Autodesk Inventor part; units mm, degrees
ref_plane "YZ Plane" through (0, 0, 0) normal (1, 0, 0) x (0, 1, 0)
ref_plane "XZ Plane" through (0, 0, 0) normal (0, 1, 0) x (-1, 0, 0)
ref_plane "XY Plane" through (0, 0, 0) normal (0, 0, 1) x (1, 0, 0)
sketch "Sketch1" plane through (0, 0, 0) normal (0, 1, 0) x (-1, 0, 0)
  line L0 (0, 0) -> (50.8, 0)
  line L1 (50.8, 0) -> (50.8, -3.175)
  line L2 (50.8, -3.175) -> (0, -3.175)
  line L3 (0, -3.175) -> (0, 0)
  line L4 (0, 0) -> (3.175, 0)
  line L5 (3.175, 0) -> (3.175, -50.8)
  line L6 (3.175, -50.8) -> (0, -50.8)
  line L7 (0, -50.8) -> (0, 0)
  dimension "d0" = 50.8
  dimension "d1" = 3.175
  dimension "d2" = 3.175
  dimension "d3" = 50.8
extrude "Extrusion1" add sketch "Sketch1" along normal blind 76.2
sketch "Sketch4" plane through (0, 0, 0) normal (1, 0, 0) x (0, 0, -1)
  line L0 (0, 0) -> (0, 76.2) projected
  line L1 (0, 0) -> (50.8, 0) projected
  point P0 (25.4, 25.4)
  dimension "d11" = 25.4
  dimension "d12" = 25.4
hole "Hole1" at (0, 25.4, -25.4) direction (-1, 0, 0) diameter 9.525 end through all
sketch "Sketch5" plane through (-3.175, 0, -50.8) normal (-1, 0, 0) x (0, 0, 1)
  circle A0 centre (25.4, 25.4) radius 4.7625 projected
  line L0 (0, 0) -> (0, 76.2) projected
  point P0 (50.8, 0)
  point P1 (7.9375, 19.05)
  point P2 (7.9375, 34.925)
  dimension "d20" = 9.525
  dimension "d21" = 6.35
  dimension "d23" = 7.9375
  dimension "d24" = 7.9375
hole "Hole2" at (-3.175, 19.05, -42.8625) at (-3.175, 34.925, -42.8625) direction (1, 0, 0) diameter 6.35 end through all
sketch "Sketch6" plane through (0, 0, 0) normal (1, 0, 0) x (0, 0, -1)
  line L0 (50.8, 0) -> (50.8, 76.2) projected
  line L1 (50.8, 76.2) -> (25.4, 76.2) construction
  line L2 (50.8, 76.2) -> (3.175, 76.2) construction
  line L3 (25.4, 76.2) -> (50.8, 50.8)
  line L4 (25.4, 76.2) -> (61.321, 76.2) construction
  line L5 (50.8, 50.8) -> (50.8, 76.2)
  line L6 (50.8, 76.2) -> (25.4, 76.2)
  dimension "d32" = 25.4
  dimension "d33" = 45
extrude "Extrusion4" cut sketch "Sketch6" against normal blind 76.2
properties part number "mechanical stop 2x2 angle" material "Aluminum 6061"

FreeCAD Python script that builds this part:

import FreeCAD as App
import Part
import Sketcher
Q = App.Units.Quantity


def add_polygon(sketch, points):
    """Adds a closed chain of lines whose ends are joined by coincident constraints."""
    first, n = sketch.GeometryCount, len(points)
    for a, b in zip(points, points[1:] + points[:1]):
        sketch.addGeometry(Part.LineSegment(App.Vector(*a, 0), App.Vector(*b, 0)), False)
    for i in range(n):
        sketch.addConstraint(Sketcher.Constraint("Coincident", first + i, 2, first + (i + 1) % n, 1))

doc = App.newDocument("Part")
body = doc.addObject("PartDesign::Body", "Body")

sketch1 = doc.addObject("Sketcher::SketchObject", "Sketch")
body.addObject(sketch1)
sketch1.AttachmentSupport = (doc.XZ_Plane, [""])
sketch1.MapMode = "FlatFace"
add_polygon(sketch1, [(0, 0), (0, -50.8), (-3.2, -50.8), (-3.2, -3.2), (-50.8, -3.2), (-50.8, 0)])
sketch1.addConstraint([
    Sketcher.Constraint("Vertical", 0),
    Sketcher.Constraint("Horizontal", 1),
    Sketcher.Constraint("Vertical", 2),
    Sketcher.Constraint("Horizontal", 3),
    Sketcher.Constraint("Vertical", 4),
    Sketcher.Constraint("Horizontal", 5),
    Sketcher.Constraint("Coincident", 5, 2, -1, 1),
    Sketcher.Constraint("Equal", 5, 0),
    Sketcher.Constraint("Equal", 3, 2),
    Sketcher.Constraint("DistanceX", 5, 1, 5, 2, Q("2 in")),
    Sketcher.Constraint("DistanceX", 1, 2, 1, 1, Q("0.125 in")),
])
pad1 = doc.addObject("PartDesign::Pad", "Pad")
body.addObject(pad1)
pad1.Profile = sketch1
pad1.Length = Q("3 in")
pad1.Reversed = True

sketch2 = doc.addObject("Sketcher::SketchObject", "Sketch001")
body.addObject(sketch2)
sketch2.AttachmentSupport = (doc.YZ_Plane, [""])
sketch2.MapMode = "FlatFace"
sketch2.addGeometry(Part.Circle(App.Vector(25.4, -25.4, 0), App.Vector(0, 0, 1), 4.8), False)
sketch2.addConstraint([
    Sketcher.Constraint("Diameter", 0, Q("0.375 in")),
    Sketcher.Constraint("DistanceX", -1, 1, 0, 3, Q("1 in")),
    Sketcher.Constraint("DistanceY", 0, 3, -1, 1, Q("1 in")),
])
doc.recompute()
hole = doc.addObject("PartDesign::Hole", "Hole")
body.addObject(hole)
hole.Profile = sketch2
hole.ThreadType = "None"
hole.Diameter = Q("0.375 in")
hole.DepthType = "ThroughAll"

sketch3 = doc.addObject("Sketcher::SketchObject", "Sketch002")
body.addObject(sketch3)
sketch3.AttachmentSupport = (doc.YZ_Plane, [""])
sketch3.MapMode = "FlatFace"
sketch3.AttachmentOffset = App.Placement(App.Vector(0, 0, -0.125 * 25.4), App.Rotation())
sketch3.addGeometry([
    Part.Circle(App.Vector(19.1, -42.9, 0), App.Vector(0, 0, 1), 3.2),
    Part.Circle(App.Vector(34.9, -42.9, 0), App.Vector(0, 0, 1), 3.2),
], False)
sketch3.addConstraint([
    Sketcher.Constraint("Equal", 0, 1),
    Sketcher.Constraint("Horizontal", 0, 3, 1, 3),
    Sketcher.Constraint("Diameter", 0, Q("0.25 in")),
    Sketcher.Constraint("DistanceX", -1, 1, 0, 3, Q("0.75 in")),
    Sketcher.Constraint("DistanceY", 0, 3, -1, 1, Q("1.6875 in")),
    Sketcher.Constraint("DistanceX", -1, 1, 1, 3, Q("1.375 in")),
])
doc.recompute()
hole2 = doc.addObject("PartDesign::Hole", "Hole001")
body.addObject(hole2)
hole2.Profile = sketch3
hole2.ThreadType = "None"
hole2.Diameter = Q("0.25 in")
hole2.DepthType = "ThroughAll"
hole2.Reversed = True

sketch4 = doc.addObject("Sketcher::SketchObject", "Sketch003")
body.addObject(sketch4)
sketch4.AttachmentSupport = (doc.YZ_Plane, [""])
sketch4.MapMode = "FlatFace"
add_polygon(sketch4, [(76, -25), (51, -51), (76, -51)])
sketch4.addConstraint([
    Sketcher.Constraint("Horizontal", 1),
    Sketcher.Constraint("Vertical", 2),
    Sketcher.Constraint("Equal", 1, 2),
    Sketcher.Constraint("DistanceX", 1, 1, 1, 2, Q("1 in")),
    Sketcher.Constraint("DistanceY", 2, 2, -1, 1, Q("1 in")),
    Sketcher.Constraint("DistanceX", -1, 1, 0, 2, Q("2 in")),
])
pocket1 = doc.addObject("PartDesign::Pocket", "Pocket")
body.addObject(pocket1)
pocket1.Profile = sketch4
pocket1.Length = Q("3 in")

doc.recompute()
